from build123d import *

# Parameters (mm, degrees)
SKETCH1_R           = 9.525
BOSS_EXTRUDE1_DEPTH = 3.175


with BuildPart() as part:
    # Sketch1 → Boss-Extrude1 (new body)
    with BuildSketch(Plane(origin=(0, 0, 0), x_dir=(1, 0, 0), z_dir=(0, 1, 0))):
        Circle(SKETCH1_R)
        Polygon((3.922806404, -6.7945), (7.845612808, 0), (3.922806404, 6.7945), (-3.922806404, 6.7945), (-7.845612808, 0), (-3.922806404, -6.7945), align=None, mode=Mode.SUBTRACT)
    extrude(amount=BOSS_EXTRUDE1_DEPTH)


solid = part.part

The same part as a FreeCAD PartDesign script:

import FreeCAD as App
import Part
import Sketcher

V = App.Vector
Q = App.Units.Quantity

doc = App.newDocument("Part")
body = doc.addObject("PartDesign::Body", "Body")

# Sketch on XZ plane
sketch1 = body.newObject("Sketcher::SketchObject", "Sketch")
sketch1.AttachmentSupport = (doc.getObject("XZ_Plane"), [""])
sketch1.MapMode = "FlatFace"
sketch1.addGeometry(Part.Circle(V(0, 0, 0), V(0, 0, 1), 10), False)
sketch1.addGeometry(Part.LineSegment(V(8, 0, 0), V(4, 7, 0)), False)
sketch1.addGeometry(Part.LineSegment(V(4, 7, 0), V(-4, 7, 0)), False)
sketch1.addGeometry(Part.LineSegment(V(-4, 7, 0), V(-8, 0, 0)), False)
sketch1.addGeometry(Part.LineSegment(V(-8, 0, 0), V(-4, -7, 0)), False)
sketch1.addGeometry(Part.LineSegment(V(-4, -7, 0), V(4, -7, 0)), False)
sketch1.addGeometry(Part.LineSegment(V(4, -7, 0), V(8, 0, 0)), False)
sketch1.addConstraint(Sketcher.Constraint("Coincident", 1, 2, 2, 1))
sketch1.addConstraint(Sketcher.Constraint("Coincident", 2, 2, 3, 1))
sketch1.addConstraint(Sketcher.Constraint("Coincident", 3, 2, 4, 1))
sketch1.addConstraint(Sketcher.Constraint("Coincident", 4, 2, 5, 1))
sketch1.addConstraint(Sketcher.Constraint("Coincident", 5, 2, 6, 1))
sketch1.addConstraint(Sketcher.Constraint("Coincident", 6, 2, 1, 1))
sketch1.addConstraint(Sketcher.Constraint("Horizontal", 2))
sketch1.addConstraint(Sketcher.Constraint("Horizontal", 5))
sketch1.addConstraint(Sketcher.Constraint("Coincident", 0, 3, -1, 1))
sketch1.addConstraint(Sketcher.Constraint("Symmetric", 1, 2, 4, 2, -1, 1))
sketch1.addConstraint(Sketcher.Constraint("Symmetric", 3, 2, 6, 2, -1, 1))
sketch1.addConstraint(Sketcher.Constraint("PointOnObject", 3, 2, -1))
sketch1.addConstraint(Sketcher.Constraint("Parallel", 3, 6))
sketch1.addConstraint(Sketcher.Constraint("Vertical", 2, 2, 4, 2))
sketch1.addConstraint(Sketcher.Constraint("Diameter", 0, Q("0.75 in")))
sketch1.addConstraint(Sketcher.Constraint("Angle", 1, Q("120 deg")))
sketch1.addConstraint(Sketcher.Constraint("DistanceY", 4, 2, 2, 2, Q("0.535 in")))
sketch1.addConstraint(Sketcher.Constraint("DistanceX", 2, 2, 2, 1, Q("7.845613 mm")))
pad1 = body.newObject("PartDesign::Pad", "Pad")
pad1.Profile = sketch1
pad1.Length = Q("0.125 in")
pad1.Reversed = True

doc.recompute()
